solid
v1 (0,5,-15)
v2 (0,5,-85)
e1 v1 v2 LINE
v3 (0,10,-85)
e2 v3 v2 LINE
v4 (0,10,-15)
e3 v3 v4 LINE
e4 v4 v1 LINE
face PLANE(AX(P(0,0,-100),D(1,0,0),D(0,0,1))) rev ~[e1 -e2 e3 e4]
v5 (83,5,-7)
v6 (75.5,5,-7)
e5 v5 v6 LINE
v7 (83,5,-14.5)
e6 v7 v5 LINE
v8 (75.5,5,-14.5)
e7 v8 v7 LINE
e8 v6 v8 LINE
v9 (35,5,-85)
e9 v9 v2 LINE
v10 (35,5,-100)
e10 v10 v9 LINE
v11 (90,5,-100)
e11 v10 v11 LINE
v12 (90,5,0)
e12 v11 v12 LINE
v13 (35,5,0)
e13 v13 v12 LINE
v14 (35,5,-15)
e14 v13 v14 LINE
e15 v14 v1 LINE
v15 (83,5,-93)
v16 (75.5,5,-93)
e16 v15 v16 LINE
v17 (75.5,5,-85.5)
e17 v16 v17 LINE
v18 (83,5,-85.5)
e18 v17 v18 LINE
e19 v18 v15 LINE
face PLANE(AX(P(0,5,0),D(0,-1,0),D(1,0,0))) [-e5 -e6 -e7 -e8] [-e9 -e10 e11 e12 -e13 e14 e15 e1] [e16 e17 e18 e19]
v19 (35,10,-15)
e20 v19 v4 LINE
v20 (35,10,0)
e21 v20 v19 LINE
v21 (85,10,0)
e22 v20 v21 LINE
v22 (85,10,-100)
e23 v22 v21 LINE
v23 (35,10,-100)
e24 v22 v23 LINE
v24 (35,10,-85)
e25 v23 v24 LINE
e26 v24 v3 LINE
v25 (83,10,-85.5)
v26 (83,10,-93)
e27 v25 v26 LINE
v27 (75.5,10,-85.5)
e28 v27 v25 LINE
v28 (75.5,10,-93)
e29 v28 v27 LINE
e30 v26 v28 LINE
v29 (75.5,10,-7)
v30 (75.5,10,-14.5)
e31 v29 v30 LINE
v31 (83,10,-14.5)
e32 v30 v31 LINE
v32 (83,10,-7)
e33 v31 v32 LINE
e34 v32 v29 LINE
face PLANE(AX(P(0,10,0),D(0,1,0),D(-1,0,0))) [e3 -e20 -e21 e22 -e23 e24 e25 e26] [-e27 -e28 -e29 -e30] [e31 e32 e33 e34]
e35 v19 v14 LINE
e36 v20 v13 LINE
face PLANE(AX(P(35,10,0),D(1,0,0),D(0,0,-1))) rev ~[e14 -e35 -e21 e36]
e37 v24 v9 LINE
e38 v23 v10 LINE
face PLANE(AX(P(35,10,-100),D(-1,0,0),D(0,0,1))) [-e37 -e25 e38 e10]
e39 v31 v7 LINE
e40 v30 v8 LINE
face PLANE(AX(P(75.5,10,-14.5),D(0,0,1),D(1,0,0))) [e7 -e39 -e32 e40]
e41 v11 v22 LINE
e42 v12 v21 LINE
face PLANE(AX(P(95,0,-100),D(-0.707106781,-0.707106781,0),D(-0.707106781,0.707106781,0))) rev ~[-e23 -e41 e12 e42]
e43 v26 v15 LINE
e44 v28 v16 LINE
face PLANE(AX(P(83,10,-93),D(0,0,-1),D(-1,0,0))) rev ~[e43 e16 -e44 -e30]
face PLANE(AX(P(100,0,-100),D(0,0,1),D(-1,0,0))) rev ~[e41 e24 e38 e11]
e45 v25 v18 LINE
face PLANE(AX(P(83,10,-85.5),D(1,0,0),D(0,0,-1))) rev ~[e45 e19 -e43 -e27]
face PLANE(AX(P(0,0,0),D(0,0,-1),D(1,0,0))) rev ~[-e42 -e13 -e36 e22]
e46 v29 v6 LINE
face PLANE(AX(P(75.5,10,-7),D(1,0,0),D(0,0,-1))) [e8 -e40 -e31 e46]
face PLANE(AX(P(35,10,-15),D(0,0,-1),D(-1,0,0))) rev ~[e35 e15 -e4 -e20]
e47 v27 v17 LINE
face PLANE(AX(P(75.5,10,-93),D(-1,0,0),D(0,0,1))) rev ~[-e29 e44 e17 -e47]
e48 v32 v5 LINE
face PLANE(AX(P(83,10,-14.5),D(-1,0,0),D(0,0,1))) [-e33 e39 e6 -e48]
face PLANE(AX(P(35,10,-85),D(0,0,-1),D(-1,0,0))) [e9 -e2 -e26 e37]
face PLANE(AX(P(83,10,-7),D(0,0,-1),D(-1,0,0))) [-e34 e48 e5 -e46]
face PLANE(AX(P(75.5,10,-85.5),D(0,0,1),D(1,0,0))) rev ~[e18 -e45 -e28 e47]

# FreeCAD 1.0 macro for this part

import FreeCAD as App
import Part
import Sketcher
Q = App.Units.Quantity


def add_polygon(sketch, points):
    """Adds a closed chain of lines whose ends are joined by coincident constraints."""
    first, n = sketch.GeometryCount, len(points)
    for a, b in zip(points, points[1:] + points[:1]):
        sketch.addGeometry(Part.LineSegment(App.Vector(*a, 0), App.Vector(*b, 0)), False)
    for i in range(n):
        sketch.addConstraint(Sketcher.Constraint("Coincident", first + i, 2, first + (i + 1) % n, 1))

doc = App.newDocument("Part")
body = doc.addObject("PartDesign::Body", "Body")

sketch1 = body.newObject("Sketcher::SketchObject", "Sketch")
sketch1.AttachmentSupport = (doc.getObject("XZ_Plane"), [""])
sketch1.MapMode = "FlatFace"
add_polygon(sketch1, [(0, -100), (0, 0), (100, 0), (100, -100)])
sketch1.addConstraint([
    Sketcher.Constraint("Vertical", 0),
    Sketcher.Constraint("Horizontal", 1),
    Sketcher.Constraint("Vertical", 2),
    Sketcher.Constraint("Horizontal", 3),
    Sketcher.Constraint("Coincident", 0, 2, -1, 1),
    Sketcher.Constraint("Equal", 3, 0),
    Sketcher.Constraint("DistanceX", 1, 1, 1, 2, Q("100 mm")),
])
pad1 = body.newObject("PartDesign::Pad", "Pad")
pad1.Profile = sketch1
pad1.Length = 10
pad1.Reversed = True

sketch2 = body.newObject("Sketcher::SketchObject", "Sketch001")
sketch2.AttachmentSupport = (doc.getObject("XY_Plane"), [""])
sketch2.MapMode = "FlatFace"
sketch2.AttachmentOffset = App.Placement(App.Vector(0, 0, -100), App.Rotation())
add_polygon(sketch2, [(100, 10), (100, 0), (95, 0), (85, 10)])
sketch2.addConstraint([
    Sketcher.Constraint("Vertical", 0),
    Sketcher.Constraint("Horizontal", 1),
    Sketcher.Constraint("Horizontal", 3),
    Sketcher.Constraint("PointOnObject", 0, 2, -1),
    Sketcher.Constraint("DistanceX", 1, 2, 1, 1, Q("5 mm")),
    Sketcher.Constraint("DistanceX", 3, 1, 3, 2, Q("15 mm")),
    Sketcher.Constraint("DistanceY", 0, 2, 0, 1, Q("10 mm")),
    Sketcher.Constraint("DistanceX", -1, 1, 0, 2, Q("100 mm")),
])
pocket1 = body.newObject("PartDesign::Pocket", "Pocket")
pocket1.Profile = sketch2
pocket1.Length = 100
pocket1.Reversed = True

sketch3 = body.newObject("Sketcher::SketchObject", "Sketch002")
sketch3.AttachmentSupport = (doc.getObject("XY_Plane"), [""])
sketch3.MapMode = "FlatFace"
add_polygon(sketch3, [(0, 2), (0, 0), (100, 0), (100, 2)])
sketch3.addConstraint([
    Sketcher.Constraint("Vertical", 0),
    Sketcher.Constraint("Horizontal", 1),
    Sketcher.Constraint("Vertical", 2),
    Sketcher.Constraint("Horizontal", 3),
    Sketcher.Constraint("Coincident", 0, 2, -1, 1),
    Sketcher.Constraint("DistanceX", 1, 1, 1, 2, Q("100 mm")),
    Sketcher.Constraint("DistanceY", 0, 2, 0, 1, Q("2 mm")),
])
pocket2 = body.newObject("PartDesign::Pocket", "Pocket001")
pocket2.Profile = sketch3
pocket2.Length = 100

sketch4 = body.newObject("Sketcher::SketchObject", "Sketch003")
sketch4.AttachmentSupport = (doc.getObject("XZ_Plane"), [""])
sketch4.MapMode = "FlatFace"
sketch4.AttachmentOffset = App.Placement(App.Vector(0, 0, -10), App.Rotation())
add_polygon(sketch4, [(0, -100), (0, -85), (35, -85), (35, -100)])
sketch4.addConstraint([
    Sketcher.Constraint("Vertical", 0),
    Sketcher.Constraint("Horizontal", 1),
    Sketcher.Constraint("Vertical", 2),
    Sketcher.Constraint("Horizontal", 3),
    Sketcher.Constraint("PointOnObject", 0, 2, -2),
    Sketcher.Constraint("DistanceX", 1, 1, 1, 2, Q("35 mm")),
    Sketcher.Constraint("DistanceY", 0, 1, 0, 2, Q("15 mm")),
    Sketcher.Constraint("DistanceY", 0, 2, -1, 1, Q("85 mm")),
])
pocket3 = body.newObject("PartDesign::Pocket", "Pocket002")
pocket3.Profile = sketch4
pocket3.Length = 100
pocket3.Reversed = True

sketch5 = body.newObject("Sketcher::SketchObject", "Sketch004")
sketch5.AttachmentSupport = (doc.getObject("XZ_Plane"), [""])
sketch5.MapMode = "FlatFace"
sketch5.AttachmentOffset = App.Placement(App.Vector(0, 0, -10), App.Rotation())
add_polygon(sketch5, [(0, -15), (0, 0), (35, 0), (35, -15)])
sketch5.addConstraint([
    Sketcher.Constraint("Vertical", 0),
    Sketcher.Constraint("Horizontal", 1),
    Sketcher.Constraint("Vertical", 2),
    Sketcher.Constraint("Horizontal", 3),
    Sketcher.Constraint("Coincident", 0, 2, -1, 1),
    Sketcher.Constraint("DistanceX", 1, 1, 1, 2, Q("35 mm")),
    Sketcher.Constraint("DistanceY", 0, 1, 0, 2, Q("15 mm")),
])
pocket4 = body.newObject("PartDesign::Pocket", "Pocket003")
pocket4.Profile = sketch5
pocket4.Length = 100
pocket4.Reversed = True

sketch6 = body.newObject("Sketcher::SketchObject", "Sketch005")
sketch6.AttachmentSupport = (doc.getObject("XY_Plane"), [""])
sketch6.MapMode = "FlatFace"
add_polygon(sketch6, [(-7, 2), (93, 2), (91, 4), (-7, 4)])
sketch6.addConstraint([
    Sketcher.Constraint("Horizontal", 0),
    Sketcher.Constraint("Horizontal", 2),
    Sketcher.Constraint("Vertical", 3),
    Sketcher.Constraint("DistanceX", 0, 1, 0, 2, Q("100 mm")),
    Sketcher.Constraint("DistanceY", 3, 2, 3, 1, Q("2 mm")),
    Sketcher.Constraint("DistanceY", -1, 1, 0, 2, Q("2 mm")),
    Sketcher.Constraint("DistanceX", 1, 2, 0, 2, Q("2 mm")),
    Sketcher.Constraint("DistanceX", -1, 1, 0, 2, Q("93 mm")),
])
pocket5 = body.newObject("PartDesign::Pocket", "Pocket004")
pocket5.Profile = sketch6
pocket5.Length = 101.5

sketch7 = body.newObject("Sketcher::SketchObject", "Sketch006")
sketch7.AttachmentSupport = (doc.getObject("XZ_Plane"), [""])
sketch7.MapMode = "FlatFace"
sketch7.AttachmentOffset = App.Placement(App.Vector(0, 0, -10), App.Rotation())
add_polygon(sketch7, [(83, -86), (83, -93), (76, -93), (76, -86)])
sketch7.addConstraint([
    Sketcher.Constraint("Vertical", 0),
    Sketcher.Constraint("Horizontal", 1),
    Sketcher.Constraint("Vertical", 2),
    Sketcher.Constraint("Horizontal", 3),
    Sketcher.Constraint("Equal", 3, 0),
    Sketcher.Constraint("DistanceX", 1, 2, 1, 1, Q("7.5 mm")),
    Sketcher.Constraint("DistanceX", -1, 1, 0, 2, Q("83 mm")),
    Sketcher.Constraint("DistanceY", 0, 2, -1, 1, Q("93 mm")),
])
pocket6 = body.newObject("PartDesign::Pocket", "Pocket005")
pocket6.Profile = sketch7
pocket6.Length = 10
pocket6.Reversed = True

sketch8 = body.newObject("Sketcher::SketchObject", "Sketch007")
sketch8.AttachmentSupport = (doc.getObject("XZ_Plane"), [""])
sketch8.MapMode = "FlatFace"
sketch8.AttachmentOffset = App.Placement(App.Vector(0, 0, -10), App.Rotation())
add_polygon(sketch8, [(76, -7), (83, -7), (83, -14), (76, -14)])
sketch8.addConstraint([
    Sketcher.Constraint("Horizontal", 0),
    Sketcher.Constraint("Vertical", 1),
    Sketcher.Constraint("Horizontal", 2),
    Sketcher.Constraint("Vertical", 3),
    Sketcher.Constraint("Equal", 2, 1),
    Sketcher.Constraint("DistanceX", 0, 1, 0, 2, Q("7.5 mm")),
    Sketcher.Constraint("DistanceX", -1, 1, 0, 2, Q("83 mm")),
    Sketcher.Constraint("DistanceY", 0, 2, -1, 1, Q("7 mm")),
])
pocket7 = body.newObject("PartDesign::Pocket", "Pocket006")
pocket7.Profile = sketch8
pocket7.Length = 10
pocket7.Reversed = True

sketch9 = body.newObject("Sketcher::SketchObject", "Sketch008")
sketch9.AttachmentSupport = (doc.getObject("XY_Plane"), [""])
sketch9.MapMode = "FlatFace"
add_polygon(sketch9, [(0, 4), (91, 4), (91, 5), (0, 5)])
sketch9.addConstraint([
    Sketcher.Constraint("Horizontal", 0),
    Sketcher.Constraint("Vertical", 1),
    Sketcher.Constraint("Horizontal", 2),
    Sketcher.Constraint("Vertical", 3),
    Sketcher.Constraint("PointOnObject", 2, 2, -2),
    Sketcher.Constraint("DistanceY", 1, 1, 1, 2, Q("1 mm")),
    Sketcher.Constraint("DistanceX", 0, 1, 0, 2, Q("91 mm")),
    Sketcher.Constraint("DistanceY", -1, 1, 0, 2, Q("4 mm")),
])
pocket8 = body.newObject("PartDesign::Pocket", "Pocket007")
pocket8.Profile = sketch9
pocket8.Length = 100.75

doc.recompute()
